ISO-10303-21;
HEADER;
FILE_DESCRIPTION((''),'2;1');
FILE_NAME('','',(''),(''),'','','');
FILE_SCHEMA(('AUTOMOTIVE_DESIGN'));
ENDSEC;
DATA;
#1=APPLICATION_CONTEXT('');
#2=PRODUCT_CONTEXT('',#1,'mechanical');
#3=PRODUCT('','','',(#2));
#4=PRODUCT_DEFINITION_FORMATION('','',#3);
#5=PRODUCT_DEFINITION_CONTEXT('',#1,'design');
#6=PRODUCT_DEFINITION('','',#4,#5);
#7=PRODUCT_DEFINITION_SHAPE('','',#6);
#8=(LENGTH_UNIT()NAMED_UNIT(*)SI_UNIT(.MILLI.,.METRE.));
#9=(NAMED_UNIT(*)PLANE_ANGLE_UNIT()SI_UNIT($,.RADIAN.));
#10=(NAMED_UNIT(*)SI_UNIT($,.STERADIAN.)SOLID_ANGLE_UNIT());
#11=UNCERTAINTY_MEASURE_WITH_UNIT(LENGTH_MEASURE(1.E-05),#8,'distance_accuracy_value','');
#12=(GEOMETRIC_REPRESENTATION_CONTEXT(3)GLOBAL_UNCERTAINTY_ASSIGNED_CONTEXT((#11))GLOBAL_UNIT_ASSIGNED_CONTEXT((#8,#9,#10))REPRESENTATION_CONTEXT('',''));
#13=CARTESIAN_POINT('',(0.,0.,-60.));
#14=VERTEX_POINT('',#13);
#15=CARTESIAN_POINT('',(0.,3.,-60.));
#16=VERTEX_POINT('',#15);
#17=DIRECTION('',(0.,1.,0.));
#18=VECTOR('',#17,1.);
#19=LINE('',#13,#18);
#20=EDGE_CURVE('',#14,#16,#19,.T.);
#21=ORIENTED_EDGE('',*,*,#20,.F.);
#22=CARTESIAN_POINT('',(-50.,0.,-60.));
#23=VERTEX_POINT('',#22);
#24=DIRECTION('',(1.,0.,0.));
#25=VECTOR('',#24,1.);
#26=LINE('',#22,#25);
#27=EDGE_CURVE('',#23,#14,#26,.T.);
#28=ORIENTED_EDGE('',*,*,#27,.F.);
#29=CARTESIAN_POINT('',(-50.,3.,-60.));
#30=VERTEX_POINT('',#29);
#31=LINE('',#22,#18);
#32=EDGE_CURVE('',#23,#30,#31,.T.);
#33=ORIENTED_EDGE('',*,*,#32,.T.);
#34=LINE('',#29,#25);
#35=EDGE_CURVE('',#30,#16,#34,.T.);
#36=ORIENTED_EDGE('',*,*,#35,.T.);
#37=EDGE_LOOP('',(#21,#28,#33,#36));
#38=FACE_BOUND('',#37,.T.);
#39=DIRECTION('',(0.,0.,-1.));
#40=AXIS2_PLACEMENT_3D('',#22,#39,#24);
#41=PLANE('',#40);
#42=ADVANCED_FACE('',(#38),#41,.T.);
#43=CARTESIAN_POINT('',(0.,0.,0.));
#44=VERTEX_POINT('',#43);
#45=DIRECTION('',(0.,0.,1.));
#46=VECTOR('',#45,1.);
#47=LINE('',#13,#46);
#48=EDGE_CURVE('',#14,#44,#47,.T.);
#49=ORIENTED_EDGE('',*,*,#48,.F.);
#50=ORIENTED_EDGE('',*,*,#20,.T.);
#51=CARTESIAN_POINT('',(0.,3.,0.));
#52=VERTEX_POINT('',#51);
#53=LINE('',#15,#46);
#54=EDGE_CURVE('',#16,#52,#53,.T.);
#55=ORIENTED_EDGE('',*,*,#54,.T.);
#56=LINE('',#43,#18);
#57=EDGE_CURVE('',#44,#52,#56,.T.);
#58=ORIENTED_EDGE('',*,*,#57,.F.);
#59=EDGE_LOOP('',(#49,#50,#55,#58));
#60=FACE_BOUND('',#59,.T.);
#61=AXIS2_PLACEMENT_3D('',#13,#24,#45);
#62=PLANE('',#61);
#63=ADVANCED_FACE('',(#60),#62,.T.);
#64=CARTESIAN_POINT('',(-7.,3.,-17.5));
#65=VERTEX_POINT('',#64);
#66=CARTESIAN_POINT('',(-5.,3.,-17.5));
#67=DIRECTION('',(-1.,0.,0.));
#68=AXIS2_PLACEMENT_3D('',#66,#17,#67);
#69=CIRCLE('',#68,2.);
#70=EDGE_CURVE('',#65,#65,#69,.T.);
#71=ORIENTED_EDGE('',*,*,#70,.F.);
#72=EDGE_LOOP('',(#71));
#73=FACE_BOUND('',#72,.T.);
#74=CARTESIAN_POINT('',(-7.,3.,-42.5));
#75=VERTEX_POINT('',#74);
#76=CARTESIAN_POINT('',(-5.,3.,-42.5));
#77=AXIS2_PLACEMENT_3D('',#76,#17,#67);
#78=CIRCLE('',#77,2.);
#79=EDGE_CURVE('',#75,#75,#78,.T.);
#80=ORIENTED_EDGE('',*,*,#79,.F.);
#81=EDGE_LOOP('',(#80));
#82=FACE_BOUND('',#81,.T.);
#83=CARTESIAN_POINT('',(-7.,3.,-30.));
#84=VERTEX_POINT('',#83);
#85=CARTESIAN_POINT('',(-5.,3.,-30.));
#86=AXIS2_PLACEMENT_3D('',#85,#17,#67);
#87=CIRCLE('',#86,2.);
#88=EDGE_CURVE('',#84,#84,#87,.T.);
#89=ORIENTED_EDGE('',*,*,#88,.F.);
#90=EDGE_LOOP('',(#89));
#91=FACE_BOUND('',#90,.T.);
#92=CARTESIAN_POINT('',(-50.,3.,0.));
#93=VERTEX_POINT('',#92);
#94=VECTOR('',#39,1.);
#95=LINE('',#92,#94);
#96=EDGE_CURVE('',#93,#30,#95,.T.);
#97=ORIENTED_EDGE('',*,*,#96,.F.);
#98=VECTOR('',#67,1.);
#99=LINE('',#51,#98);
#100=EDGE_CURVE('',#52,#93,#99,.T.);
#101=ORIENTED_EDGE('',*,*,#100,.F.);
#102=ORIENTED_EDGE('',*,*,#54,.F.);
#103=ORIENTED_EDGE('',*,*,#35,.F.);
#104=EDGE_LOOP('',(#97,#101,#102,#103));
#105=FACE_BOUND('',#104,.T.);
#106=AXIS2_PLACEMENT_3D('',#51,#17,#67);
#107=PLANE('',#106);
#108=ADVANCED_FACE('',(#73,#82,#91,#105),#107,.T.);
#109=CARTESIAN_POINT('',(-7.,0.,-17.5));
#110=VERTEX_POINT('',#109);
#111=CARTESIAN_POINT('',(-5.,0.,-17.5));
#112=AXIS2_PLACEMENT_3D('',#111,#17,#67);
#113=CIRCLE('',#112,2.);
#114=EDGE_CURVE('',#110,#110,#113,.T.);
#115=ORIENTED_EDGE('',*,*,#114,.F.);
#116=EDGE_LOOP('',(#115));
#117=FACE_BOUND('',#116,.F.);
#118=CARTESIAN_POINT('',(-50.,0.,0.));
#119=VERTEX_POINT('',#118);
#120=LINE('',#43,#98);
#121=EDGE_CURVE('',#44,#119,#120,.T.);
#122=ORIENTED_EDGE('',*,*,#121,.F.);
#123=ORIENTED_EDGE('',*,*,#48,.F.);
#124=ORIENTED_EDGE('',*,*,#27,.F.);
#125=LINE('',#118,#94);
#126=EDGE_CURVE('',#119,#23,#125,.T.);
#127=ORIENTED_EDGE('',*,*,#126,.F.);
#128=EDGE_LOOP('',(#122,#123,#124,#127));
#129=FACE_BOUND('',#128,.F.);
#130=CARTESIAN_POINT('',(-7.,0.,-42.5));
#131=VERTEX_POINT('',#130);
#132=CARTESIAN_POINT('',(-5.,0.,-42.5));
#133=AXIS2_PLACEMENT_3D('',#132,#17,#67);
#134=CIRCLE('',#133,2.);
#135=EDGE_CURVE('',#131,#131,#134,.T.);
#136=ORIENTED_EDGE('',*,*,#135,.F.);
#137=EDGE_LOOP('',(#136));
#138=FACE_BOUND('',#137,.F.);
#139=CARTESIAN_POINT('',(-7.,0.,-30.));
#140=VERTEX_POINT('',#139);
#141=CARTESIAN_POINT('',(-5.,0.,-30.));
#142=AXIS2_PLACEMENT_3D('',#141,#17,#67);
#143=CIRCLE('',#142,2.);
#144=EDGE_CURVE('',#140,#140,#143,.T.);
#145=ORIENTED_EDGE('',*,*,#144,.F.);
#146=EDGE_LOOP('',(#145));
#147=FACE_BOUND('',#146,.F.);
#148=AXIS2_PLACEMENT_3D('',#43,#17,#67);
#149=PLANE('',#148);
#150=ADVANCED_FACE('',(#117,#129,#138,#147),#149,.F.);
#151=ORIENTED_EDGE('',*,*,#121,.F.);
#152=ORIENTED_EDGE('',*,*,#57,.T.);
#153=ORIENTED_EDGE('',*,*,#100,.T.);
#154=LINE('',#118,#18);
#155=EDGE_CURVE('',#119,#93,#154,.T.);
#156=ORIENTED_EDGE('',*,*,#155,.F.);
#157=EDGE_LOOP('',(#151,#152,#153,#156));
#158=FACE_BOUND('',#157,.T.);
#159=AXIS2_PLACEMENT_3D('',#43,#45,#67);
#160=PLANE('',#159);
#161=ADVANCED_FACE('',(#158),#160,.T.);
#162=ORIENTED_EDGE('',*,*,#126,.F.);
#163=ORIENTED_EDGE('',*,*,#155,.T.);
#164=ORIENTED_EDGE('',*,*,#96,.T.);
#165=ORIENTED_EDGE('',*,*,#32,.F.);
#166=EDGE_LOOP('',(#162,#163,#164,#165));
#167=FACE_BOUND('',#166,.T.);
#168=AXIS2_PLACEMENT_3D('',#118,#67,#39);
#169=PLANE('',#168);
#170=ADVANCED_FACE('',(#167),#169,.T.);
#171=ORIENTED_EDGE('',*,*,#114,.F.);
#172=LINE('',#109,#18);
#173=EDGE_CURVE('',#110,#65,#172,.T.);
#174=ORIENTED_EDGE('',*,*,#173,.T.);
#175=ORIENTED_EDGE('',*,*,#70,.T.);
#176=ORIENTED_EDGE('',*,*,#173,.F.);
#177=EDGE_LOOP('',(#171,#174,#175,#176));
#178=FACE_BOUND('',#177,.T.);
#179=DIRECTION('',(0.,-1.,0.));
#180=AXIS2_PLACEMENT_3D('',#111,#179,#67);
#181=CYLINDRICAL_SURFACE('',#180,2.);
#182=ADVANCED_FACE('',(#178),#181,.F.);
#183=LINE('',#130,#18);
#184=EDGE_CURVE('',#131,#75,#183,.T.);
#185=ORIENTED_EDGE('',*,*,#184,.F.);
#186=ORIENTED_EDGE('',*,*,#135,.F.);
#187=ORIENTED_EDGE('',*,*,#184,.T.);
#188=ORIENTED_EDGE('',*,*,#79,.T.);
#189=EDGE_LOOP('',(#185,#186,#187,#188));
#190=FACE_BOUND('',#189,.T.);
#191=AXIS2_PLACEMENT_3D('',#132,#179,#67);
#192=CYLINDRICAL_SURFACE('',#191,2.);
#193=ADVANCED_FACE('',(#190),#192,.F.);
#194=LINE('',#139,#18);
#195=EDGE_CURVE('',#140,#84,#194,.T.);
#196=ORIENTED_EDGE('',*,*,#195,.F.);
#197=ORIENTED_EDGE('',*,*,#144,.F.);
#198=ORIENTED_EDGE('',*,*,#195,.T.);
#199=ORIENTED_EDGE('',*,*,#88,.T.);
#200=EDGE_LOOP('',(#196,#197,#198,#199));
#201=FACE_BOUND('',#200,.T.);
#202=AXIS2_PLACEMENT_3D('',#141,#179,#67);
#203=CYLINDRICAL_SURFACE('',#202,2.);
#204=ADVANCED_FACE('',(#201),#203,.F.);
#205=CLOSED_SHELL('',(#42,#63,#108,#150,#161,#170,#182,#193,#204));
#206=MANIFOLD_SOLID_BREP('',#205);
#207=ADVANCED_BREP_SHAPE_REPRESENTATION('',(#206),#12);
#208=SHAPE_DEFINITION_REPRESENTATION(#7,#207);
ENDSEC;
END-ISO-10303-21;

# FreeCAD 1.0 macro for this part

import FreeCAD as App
import Part
import Sketcher
from FreeCAD import Vector
Q = App.Units.Quantity

doc = App.newDocument("Part")
body = doc.addObject("PartDesign::Body", "Body")

# Sketch on XZ plane
sketch1 = body.newObject("Sketcher::SketchObject", "Sketch")
sketch1.AttachmentSupport = (doc.getObject("XZ_Plane"), [""])
sketch1.MapMode = "FlatFace"
sketch1.addGeometry(Part.LineSegment(Vector(-50, 0, 0), Vector(0, 0, 0)), False)
sketch1.addGeometry(Part.LineSegment(Vector(0, 0, 0), Vector(0, -60, 0)), False)
sketch1.addGeometry(Part.LineSegment(Vector(0, -60, 0), Vector(-50, -60, 0)), False)
sketch1.addGeometry(Part.LineSegment(Vector(-50, -60, 0), Vector(-50, 0, 0)), False)
sketch1.addGeometry(Part.Circle(Vector(-5, -42.5, 0), Vector(0, 0, 1), 2), False)
sketch1.addGeometry(Part.Circle(Vector(-5, -30, 0), Vector(0, 0, 1), 2), False)
sketch1.addGeometry(Part.Circle(Vector(-5, -17.5, 0), Vector(0, 0, 1), 2), False)
sketch1.addConstraint(Sketcher.Constraint("Coincident", 0, 2, 1, 1))
sketch1.addConstraint(Sketcher.Constraint("Coincident", 1, 2, 2, 1))
sketch1.addConstraint(Sketcher.Constraint("Coincident", 2, 2, 3, 1))
sketch1.addConstraint(Sketcher.Constraint("Coincident", 3, 2, 0, 1))
sketch1.addConstraint(Sketcher.Constraint("Horizontal", 0))
sketch1.addConstraint(Sketcher.Constraint("Vertical", 1))
sketch1.addConstraint(Sketcher.Constraint("Horizontal", 2))
sketch1.addConstraint(Sketcher.Constraint("Vertical", 3))
sketch1.addConstraint(Sketcher.Constraint("Coincident", 0, 2, -1, 1))
sketch1.addConstraint(Sketcher.Constraint("Equal", 4, 5))
sketch1.addConstraint(Sketcher.Constraint("Equal", 5, 6))
sketch1.addConstraint(Sketcher.Constraint("Vertical", 4, 3, 5, 3))
sketch1.addConstraint(Sketcher.Constraint("Vertical", 5, 3, 6, 3))
sketch1.addConstraint(Sketcher.Constraint("Diameter", 4, Q("4 mm")))
sketch1.addConstraint(Sketcher.Constraint("DistanceX", 0, 1, 0, 2, Q("50 mm")))
sketch1.addConstraint(Sketcher.Constraint("DistanceY", 1, 2, 1, 1, Q("60 mm")))
sketch1.addConstraint(Sketcher.Constraint("DistanceX", 4, 3, -1, 1, Q("5 mm")))
sketch1.addConstraint(Sketcher.Constraint("DistanceY", 5, 3, -1, 1, Q("30 mm")))
sketch1.addConstraint(Sketcher.Constraint("DistanceY", 4, 3, 6, 3, Q("25 mm")))
sketch1.addConstraint(Sketcher.Constraint("DistanceY", 4, 3, -1, 1, Q("42.5 mm")))
pad1 = body.newObject("PartDesign::Pad", "Pad")
pad1.Profile = sketch1
pad1.Length = 3
pad1.Reversed = True

doc.recompute()
